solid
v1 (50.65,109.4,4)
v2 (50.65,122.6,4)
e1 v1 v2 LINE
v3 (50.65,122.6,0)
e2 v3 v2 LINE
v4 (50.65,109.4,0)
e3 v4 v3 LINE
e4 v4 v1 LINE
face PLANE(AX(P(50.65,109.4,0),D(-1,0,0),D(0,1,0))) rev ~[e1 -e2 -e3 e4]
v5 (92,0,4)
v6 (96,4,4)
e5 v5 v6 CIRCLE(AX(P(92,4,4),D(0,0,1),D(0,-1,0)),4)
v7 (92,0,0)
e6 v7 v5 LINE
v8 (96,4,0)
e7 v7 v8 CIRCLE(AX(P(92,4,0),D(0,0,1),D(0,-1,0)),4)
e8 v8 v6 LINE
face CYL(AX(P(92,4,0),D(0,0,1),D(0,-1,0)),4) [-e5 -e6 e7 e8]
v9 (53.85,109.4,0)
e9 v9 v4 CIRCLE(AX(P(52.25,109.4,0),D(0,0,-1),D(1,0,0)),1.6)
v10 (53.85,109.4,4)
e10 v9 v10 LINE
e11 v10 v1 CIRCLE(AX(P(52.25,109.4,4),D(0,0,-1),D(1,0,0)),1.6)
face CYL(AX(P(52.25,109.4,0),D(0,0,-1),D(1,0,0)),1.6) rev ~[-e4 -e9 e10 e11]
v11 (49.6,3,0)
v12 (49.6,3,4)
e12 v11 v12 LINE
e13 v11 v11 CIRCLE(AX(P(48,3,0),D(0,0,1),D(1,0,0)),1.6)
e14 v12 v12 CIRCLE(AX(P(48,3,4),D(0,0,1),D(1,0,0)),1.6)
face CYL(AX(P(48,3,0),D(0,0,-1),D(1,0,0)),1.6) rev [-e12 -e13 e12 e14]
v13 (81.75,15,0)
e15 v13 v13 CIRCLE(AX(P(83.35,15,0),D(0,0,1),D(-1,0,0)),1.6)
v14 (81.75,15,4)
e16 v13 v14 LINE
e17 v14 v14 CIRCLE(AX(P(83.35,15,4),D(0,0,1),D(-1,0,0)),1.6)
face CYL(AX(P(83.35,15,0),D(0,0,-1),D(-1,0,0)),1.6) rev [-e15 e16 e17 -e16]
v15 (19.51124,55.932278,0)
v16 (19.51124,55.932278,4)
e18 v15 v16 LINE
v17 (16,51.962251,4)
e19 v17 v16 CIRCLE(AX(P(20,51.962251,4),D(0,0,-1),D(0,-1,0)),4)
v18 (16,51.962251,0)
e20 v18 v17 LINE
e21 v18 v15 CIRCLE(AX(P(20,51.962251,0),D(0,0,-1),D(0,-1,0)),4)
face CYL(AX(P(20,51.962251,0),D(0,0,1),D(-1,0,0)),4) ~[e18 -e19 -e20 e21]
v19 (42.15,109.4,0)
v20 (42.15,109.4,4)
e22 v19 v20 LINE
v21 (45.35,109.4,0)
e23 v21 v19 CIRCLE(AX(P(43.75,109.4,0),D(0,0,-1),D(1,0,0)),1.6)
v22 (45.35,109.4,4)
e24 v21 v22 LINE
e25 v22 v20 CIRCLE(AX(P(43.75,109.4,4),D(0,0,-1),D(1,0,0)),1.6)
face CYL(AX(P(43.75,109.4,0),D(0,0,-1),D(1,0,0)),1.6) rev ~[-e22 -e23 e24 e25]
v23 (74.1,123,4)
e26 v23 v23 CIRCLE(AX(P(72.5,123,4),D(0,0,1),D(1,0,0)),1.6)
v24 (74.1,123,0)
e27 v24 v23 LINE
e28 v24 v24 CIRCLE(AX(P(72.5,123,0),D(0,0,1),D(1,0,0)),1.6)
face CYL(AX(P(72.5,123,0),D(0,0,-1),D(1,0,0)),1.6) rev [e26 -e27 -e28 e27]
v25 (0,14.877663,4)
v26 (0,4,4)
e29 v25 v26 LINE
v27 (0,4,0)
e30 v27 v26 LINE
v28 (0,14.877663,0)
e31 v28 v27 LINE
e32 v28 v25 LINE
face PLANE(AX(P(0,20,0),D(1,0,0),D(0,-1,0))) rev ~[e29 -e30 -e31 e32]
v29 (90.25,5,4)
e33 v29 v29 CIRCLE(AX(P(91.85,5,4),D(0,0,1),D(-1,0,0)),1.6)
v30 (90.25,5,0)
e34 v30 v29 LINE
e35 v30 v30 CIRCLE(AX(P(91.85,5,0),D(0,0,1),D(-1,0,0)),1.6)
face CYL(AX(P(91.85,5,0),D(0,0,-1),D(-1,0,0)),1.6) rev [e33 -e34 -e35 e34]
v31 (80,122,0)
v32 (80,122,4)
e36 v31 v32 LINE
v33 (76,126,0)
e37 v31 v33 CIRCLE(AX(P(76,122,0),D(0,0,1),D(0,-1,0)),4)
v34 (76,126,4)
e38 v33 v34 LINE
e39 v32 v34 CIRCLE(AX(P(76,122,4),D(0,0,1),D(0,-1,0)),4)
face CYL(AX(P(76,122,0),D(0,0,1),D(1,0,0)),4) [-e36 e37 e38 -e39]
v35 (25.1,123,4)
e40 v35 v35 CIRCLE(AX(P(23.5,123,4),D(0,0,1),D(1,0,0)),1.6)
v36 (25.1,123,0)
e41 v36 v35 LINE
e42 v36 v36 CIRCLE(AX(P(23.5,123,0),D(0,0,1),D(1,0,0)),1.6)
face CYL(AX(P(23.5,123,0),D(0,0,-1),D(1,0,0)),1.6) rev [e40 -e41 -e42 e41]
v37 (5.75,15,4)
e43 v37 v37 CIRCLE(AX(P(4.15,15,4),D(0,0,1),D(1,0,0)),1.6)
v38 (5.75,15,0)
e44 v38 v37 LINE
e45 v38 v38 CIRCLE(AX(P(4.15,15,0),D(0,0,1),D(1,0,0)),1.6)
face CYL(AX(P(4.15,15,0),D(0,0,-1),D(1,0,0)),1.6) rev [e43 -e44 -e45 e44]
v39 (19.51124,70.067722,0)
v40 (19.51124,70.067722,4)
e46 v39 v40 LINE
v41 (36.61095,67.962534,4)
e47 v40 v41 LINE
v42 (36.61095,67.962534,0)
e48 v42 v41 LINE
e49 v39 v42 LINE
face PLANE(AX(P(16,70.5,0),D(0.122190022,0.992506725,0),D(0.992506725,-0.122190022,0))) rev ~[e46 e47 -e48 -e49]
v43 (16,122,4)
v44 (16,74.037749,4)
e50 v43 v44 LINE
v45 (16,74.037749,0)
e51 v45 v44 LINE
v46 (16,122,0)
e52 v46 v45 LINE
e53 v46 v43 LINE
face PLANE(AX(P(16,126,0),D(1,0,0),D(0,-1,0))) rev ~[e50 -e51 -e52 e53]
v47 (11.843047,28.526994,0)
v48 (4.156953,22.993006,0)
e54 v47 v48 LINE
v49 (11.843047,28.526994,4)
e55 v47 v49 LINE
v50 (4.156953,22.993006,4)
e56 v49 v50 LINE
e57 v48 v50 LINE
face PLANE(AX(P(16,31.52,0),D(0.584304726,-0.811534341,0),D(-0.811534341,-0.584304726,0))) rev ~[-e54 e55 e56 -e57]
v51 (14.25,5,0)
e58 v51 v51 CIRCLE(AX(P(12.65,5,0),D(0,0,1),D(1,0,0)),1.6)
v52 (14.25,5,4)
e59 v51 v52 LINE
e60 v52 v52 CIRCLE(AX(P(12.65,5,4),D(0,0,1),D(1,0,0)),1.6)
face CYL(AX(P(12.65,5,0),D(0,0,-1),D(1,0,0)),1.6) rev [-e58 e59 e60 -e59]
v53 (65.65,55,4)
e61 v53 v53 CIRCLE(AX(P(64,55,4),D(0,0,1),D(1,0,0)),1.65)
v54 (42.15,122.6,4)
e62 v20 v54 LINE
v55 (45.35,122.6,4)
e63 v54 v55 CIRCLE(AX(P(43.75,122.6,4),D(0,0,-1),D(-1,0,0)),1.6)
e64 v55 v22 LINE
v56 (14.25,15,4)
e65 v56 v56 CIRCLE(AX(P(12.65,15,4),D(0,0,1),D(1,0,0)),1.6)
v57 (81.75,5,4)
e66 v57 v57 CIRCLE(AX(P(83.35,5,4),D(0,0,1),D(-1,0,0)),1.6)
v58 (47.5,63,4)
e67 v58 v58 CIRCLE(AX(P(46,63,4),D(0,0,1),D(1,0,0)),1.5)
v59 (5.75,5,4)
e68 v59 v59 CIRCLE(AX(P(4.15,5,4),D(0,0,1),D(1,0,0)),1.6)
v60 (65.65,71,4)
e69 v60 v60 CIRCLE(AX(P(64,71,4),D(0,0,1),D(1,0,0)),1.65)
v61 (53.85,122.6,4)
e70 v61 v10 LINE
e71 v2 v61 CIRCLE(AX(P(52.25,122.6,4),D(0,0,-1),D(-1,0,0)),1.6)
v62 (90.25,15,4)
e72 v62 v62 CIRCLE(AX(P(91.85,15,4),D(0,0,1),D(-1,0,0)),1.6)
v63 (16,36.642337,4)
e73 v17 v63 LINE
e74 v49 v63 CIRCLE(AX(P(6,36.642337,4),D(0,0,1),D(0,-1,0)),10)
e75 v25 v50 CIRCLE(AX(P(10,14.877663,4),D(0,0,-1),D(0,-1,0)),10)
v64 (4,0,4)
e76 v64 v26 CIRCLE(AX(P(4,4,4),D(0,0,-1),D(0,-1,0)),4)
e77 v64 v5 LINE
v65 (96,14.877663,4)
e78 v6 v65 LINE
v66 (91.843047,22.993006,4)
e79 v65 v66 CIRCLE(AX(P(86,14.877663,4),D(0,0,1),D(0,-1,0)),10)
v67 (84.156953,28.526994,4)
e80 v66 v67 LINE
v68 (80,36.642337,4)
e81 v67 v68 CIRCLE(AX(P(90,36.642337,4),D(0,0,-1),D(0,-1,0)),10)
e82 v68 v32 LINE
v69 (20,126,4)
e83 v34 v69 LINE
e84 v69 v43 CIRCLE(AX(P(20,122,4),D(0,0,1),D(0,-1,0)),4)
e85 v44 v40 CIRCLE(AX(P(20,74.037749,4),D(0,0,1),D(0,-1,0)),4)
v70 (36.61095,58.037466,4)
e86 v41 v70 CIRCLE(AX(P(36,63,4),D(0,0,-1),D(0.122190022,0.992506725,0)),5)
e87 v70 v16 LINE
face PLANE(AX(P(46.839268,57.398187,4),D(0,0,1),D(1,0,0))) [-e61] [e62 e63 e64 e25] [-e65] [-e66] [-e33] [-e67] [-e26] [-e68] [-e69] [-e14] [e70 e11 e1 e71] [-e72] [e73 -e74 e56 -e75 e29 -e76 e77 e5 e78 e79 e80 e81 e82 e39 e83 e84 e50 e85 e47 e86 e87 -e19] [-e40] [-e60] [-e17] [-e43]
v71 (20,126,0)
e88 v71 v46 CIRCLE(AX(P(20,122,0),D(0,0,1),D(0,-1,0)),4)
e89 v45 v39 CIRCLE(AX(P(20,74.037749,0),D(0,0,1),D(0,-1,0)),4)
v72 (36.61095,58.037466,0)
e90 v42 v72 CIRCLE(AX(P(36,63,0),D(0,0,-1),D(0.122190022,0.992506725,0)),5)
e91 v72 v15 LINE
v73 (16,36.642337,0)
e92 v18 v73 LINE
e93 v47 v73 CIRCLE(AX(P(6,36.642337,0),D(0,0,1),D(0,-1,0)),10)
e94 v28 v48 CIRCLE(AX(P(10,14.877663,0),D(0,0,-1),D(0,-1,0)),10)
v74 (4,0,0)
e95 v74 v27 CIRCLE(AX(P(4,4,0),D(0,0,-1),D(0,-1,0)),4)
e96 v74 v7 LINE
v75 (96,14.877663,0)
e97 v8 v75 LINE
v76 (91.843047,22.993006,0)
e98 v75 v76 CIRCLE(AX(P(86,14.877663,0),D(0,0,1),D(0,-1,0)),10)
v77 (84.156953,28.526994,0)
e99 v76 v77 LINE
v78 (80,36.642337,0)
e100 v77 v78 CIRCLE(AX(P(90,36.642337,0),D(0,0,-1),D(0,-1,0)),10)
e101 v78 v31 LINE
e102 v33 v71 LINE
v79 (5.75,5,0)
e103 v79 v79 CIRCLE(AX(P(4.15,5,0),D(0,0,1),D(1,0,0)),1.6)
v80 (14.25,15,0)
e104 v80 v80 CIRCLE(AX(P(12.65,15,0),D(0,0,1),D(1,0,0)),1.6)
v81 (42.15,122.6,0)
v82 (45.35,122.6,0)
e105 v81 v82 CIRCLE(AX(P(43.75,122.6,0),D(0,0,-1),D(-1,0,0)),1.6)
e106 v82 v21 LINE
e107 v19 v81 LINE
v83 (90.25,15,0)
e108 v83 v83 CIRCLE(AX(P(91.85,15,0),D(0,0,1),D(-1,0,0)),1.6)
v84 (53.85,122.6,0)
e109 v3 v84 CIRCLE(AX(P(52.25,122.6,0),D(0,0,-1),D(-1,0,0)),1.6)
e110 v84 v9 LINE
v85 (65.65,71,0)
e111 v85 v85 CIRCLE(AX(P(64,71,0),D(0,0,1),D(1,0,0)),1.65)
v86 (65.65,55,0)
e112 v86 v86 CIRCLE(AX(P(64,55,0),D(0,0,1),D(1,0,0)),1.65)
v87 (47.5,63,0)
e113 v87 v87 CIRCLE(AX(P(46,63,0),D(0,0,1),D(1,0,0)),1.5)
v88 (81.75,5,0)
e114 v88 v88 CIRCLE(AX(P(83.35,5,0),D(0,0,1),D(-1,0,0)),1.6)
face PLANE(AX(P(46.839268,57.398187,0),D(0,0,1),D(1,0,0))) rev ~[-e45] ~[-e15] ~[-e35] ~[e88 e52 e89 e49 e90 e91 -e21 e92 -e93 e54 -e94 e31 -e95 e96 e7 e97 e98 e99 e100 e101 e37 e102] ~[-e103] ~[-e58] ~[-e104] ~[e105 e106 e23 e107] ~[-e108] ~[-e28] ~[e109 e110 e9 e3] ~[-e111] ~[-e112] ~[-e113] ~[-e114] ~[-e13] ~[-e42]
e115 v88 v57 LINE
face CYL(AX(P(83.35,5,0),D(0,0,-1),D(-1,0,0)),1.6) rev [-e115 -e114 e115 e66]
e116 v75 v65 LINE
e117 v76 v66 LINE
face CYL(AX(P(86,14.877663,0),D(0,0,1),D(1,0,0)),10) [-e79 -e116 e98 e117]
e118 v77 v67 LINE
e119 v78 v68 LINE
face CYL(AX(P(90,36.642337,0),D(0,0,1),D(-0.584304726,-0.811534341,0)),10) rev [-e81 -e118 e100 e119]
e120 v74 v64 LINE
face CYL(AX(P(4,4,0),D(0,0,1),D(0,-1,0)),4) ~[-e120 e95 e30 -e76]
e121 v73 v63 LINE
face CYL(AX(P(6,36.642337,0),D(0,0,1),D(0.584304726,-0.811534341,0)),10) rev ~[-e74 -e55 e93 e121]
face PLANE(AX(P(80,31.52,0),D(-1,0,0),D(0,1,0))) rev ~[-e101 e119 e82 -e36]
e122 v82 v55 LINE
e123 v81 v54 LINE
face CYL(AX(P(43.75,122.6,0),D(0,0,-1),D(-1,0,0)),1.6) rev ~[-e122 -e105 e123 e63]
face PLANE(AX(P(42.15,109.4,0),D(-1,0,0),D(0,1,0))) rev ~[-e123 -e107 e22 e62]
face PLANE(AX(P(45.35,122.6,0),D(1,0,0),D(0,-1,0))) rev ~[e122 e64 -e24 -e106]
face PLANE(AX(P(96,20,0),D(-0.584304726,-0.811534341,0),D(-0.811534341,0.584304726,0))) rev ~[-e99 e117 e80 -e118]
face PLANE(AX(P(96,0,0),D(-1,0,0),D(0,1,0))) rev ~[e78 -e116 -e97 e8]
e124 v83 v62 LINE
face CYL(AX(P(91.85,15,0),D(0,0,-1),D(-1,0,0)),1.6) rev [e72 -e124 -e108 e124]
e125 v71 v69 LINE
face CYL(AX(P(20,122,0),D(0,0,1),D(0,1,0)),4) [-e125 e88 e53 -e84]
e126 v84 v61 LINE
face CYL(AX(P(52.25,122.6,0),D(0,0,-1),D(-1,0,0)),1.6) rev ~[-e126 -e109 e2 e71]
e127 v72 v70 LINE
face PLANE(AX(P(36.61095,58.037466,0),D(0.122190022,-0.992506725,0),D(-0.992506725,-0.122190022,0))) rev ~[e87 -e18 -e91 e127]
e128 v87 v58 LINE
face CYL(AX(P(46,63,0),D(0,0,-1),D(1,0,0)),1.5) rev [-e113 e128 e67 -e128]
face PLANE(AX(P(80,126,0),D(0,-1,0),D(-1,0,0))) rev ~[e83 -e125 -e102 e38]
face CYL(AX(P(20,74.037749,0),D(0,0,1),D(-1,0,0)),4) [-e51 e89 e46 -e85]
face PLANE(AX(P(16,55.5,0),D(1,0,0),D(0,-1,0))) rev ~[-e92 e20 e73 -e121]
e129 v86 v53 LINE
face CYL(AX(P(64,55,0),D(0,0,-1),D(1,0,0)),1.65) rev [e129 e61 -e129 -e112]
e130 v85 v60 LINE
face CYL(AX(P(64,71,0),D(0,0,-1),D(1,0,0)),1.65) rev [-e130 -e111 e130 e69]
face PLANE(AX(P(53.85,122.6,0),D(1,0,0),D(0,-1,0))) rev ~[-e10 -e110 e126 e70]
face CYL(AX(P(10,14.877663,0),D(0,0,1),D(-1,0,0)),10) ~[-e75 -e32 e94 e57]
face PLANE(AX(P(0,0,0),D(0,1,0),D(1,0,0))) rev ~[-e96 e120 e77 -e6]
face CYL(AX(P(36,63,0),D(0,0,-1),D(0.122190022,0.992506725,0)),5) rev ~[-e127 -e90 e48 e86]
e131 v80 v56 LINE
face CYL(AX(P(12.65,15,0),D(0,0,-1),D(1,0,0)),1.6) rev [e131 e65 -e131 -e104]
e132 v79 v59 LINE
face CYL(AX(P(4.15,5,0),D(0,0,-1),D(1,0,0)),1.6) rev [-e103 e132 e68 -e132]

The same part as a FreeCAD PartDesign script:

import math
import FreeCAD as App
import Part
import Sketcher


def edges_at(feature, points):
    """Names of the edges that pass closest to the given points."""
    edges = feature.Shape.Edges
    near = lambda p: min(range(len(edges)), key=lambda i: edges[i].distToShape(Part.Vertex(*p))[0])
    return sorted({f"Edge{near(p) + 1}" for p in points})

doc = App.newDocument("Part")
params = doc.addObject("Spreadsheet::Sheet", "Params")
for row, (alias, value) in enumerate([
    ("sketch1_diameter", "3 mm"),
    ("sketch1_radius", "5 mm"),
    ("sketch1_diameter2", "3.2 mm"),
    ("sketch1_diameter3", "3.3 mm"),
    ("sketch1_width", "96 mm"),
    ("pad1_length", "4 mm"),
    ("fillet_radius", "4 mm"),
    ("fillet2_radius", "10 mm"),
], start=1):
    params.set(f"A{row}", alias)
    params.set(f"B{row}", "=" + value)
    params.setAlias(f"B{row}", alias)

body = doc.addObject("PartDesign::Body", "Body")

# Sketch on XY plane
sketch1 = body.newObject("Sketcher::SketchObject", "Sketch")
sketch1.AttachmentSupport = (doc.getObject("XY_Plane"), [""])
sketch1.MapMode = "FlatFace"
sketch1.addGeometry(Part.LineSegment(App.Vector(0, 0, 0), App.Vector(96, 0, 0)), False)
sketch1.addGeometry(Part.LineSegment(App.Vector(96, 0, 0), App.Vector(96, 20, 0)), False)
sketch1.addGeometry(Part.LineSegment(App.Vector(96, 20, 0), App.Vector(80, 31.5, 0)), False)
sketch1.addGeometry(Part.LineSegment(App.Vector(80, 31.5, 0), App.Vector(80, 126, 0)), False)
sketch1.addGeometry(Part.LineSegment(App.Vector(80, 126, 0), App.Vector(16, 126, 0)), False)
sketch1.addGeometry(Part.LineSegment(App.Vector(16, 126, 0), App.Vector(16, 70.5, 0)), False)
sketch1.addGeometry(Part.LineSegment(App.Vector(16, 70.5, 0), App.Vector(36.6, 68, 0)), False)
sketch1.addGeometry(Part.ArcOfCircle(Part.Circle(App.Vector(36, 63, 0), App.Vector(0, 0, 1), 5), math.radians(-83), math.radians(83)), False)
sketch1.addGeometry(Part.LineSegment(App.Vector(36.6, 58, 0), App.Vector(16, 55.5, 0)), False)
sketch1.addGeometry(Part.LineSegment(App.Vector(16, 55.5, 0), App.Vector(16, 31.5, 0)), False)
sketch1.addGeometry(Part.LineSegment(App.Vector(16, 31.5, 0), App.Vector(0, 20, 0)), False)
sketch1.addGeometry(Part.LineSegment(App.Vector(0, 20, 0), App.Vector(0, 0, 0)), False)
sketch1.addGeometry(Part.Circle(App.Vector(4.2, 5, 0), App.Vector(0, 0, 1), 1.6), False)
sketch1.addGeometry(Part.Circle(App.Vector(12.7, 5, 0), App.Vector(0, 0, 1), 1.6), False)
sketch1.addGeometry(Part.Circle(App.Vector(4.2, 15, 0), App.Vector(0, 0, 1), 1.6), False)
sketch1.addGeometry(Part.Circle(App.Vector(12.7, 15, 0), App.Vector(0, 0, 1), 1.6), False)
sketch1.addGeometry(Part.Circle(App.Vector(46, 63, 0), App.Vector(0, 0, 1), 1.5), False)
sketch1.addGeometry(Part.Circle(App.Vector(48, 3, 0), App.Vector(0, 0, 1), 1.6), False)
sketch1.addGeometry(Part.Circle(App.Vector(83.3, 5, 0), App.Vector(0, 0, 1), 1.6), False)
sketch1.addGeometry(Part.Circle(App.Vector(91.8, 5, 0), App.Vector(0, 0, 1), 1.6), False)
sketch1.addGeometry(Part.Circle(App.Vector(83.3, 15, 0), App.Vector(0, 0, 1), 1.6), False)
sketch1.addGeometry(Part.Circle(App.Vector(91.8, 15, 0), App.Vector(0, 0, 1), 1.6), False)
sketch1.addGeometry(Part.Circle(App.Vector(64, 55, 0), App.Vector(0, 0, 1), 1.6), False)
sketch1.addGeometry(Part.Circle(App.Vector(23.5, 123, 0), App.Vector(0, 0, 1), 1.6), False)
sketch1.addGeometry(Part.ArcOfCircle(Part.Circle(App.Vector(43.8, 122.6, 0), App.Vector(0, 0, 1), 1.6), math.radians(0), math.radians(180)), False)
sketch1.addGeometry(Part.LineSegment(App.Vector(45.4, 122.6, 0), App.Vector(45.4, 109.4, 0)), False)
sketch1.addGeometry(Part.ArcOfCircle(Part.Circle(App.Vector(43.8, 109.4, 0), App.Vector(0, 0, 1), 1.6), math.radians(180), math.radians(360)), False)
sketch1.addGeometry(Part.LineSegment(App.Vector(42.1, 109.4, 0), App.Vector(42.1, 122.6, 0)), False)
sketch1.addGeometry(Part.Circle(App.Vector(64, 71, 0), App.Vector(0, 0, 1), 1.6), False)
sketch1.addGeometry(Part.ArcOfCircle(Part.Circle(App.Vector(52.2, 109.4, 0), App.Vector(0, 0, 1), 1.6), math.radians(180), math.radians(360)), False)
sketch1.addGeometry(Part.LineSegment(App.Vector(50.6, 109.4, 0), App.Vector(50.6, 122.6, 0)), False)
sketch1.addGeometry(Part.ArcOfCircle(Part.Circle(App.Vector(52.2, 122.6, 0), App.Vector(0, 0, 1), 1.6), math.radians(0), math.radians(180)), False)
sketch1.addGeometry(Part.LineSegment(App.Vector(53.9, 122.6, 0), App.Vector(53.9, 109.4, 0)), False)
sketch1.addGeometry(Part.Circle(App.Vector(72.5, 123, 0), App.Vector(0, 0, 1), 1.6), False)
sketch1.addConstraint(Sketcher.Constraint("Coincident", 0, 2, 1, 1))
sketch1.addConstraint(Sketcher.Constraint("Coincident", 1, 2, 2, 1))
sketch1.addConstraint(Sketcher.Constraint("Coincident", 2, 2, 3, 1))
sketch1.addConstraint(Sketcher.Constraint("Coincident", 3, 2, 4, 1))
sketch1.addConstraint(Sketcher.Constraint("Coincident", 4, 2, 5, 1))
sketch1.addConstraint(Sketcher.Constraint("Coincident", 5, 2, 6, 1))
sketch1.addConstraint(Sketcher.Constraint("Tangent", 6, 2, 7, 2))
sketch1.addConstraint(Sketcher.Constraint("Tangent", 7, 1, 8, 1))
sketch1.addConstraint(Sketcher.Constraint("Coincident", 8, 2, 9, 1))
sketch1.addConstraint(Sketcher.Constraint("Coincident", 9, 2, 10, 1))
sketch1.addConstraint(Sketcher.Constraint("Coincident", 10, 2, 11, 1))
sketch1.addConstraint(Sketcher.Constraint("Coincident", 11, 2, 0, 1))
sketch1.addConstraint(Sketcher.Constraint("Tangent", 24, 1, 25, 1))
sketch1.addConstraint(Sketcher.Constraint("Tangent", 25, 2, 26, 2))
sketch1.addConstraint(Sketcher.Constraint("Tangent", 26, 1, 27, 1))
sketch1.addConstraint(Sketcher.Constraint("Tangent", 27, 2, 24, 2))
sketch1.addConstraint(Sketcher.Constraint("Tangent", 29, 1, 30, 1))
sketch1.addConstraint(Sketcher.Constraint("Tangent", 30, 2, 31, 2))
sketch1.addConstraint(Sketcher.Constraint("Tangent", 31, 1, 32, 1))
sketch1.addConstraint(Sketcher.Constraint("Tangent", 32, 2, 29, 2))
sketch1.addConstraint(Sketcher.Constraint("Horizontal", 0))
sketch1.addConstraint(Sketcher.Constraint("Vertical", 1))
sketch1.addConstraint(Sketcher.Constraint("Vertical", 3))
sketch1.addConstraint(Sketcher.Constraint("Horizontal", 4))
sketch1.addConstraint(Sketcher.Constraint("Vertical", 5))
sketch1.addConstraint(Sketcher.Constraint("Vertical", 9))
sketch1.addConstraint(Sketcher.Constraint("Vertical", 11))
sketch1.addConstraint(Sketcher.Constraint("Vertical", 25))
sketch1.addConstraint(Sketcher.Constraint("Vertical", 27))
sketch1.addConstraint(Sketcher.Constraint("Vertical", 30))
sketch1.addConstraint(Sketcher.Constraint("Vertical", 32))
sketch1.addConstraint(Sketcher.Constraint("Coincident", 11, 2, -1, 1))
sketch1.addConstraint(Sketcher.Constraint("Equal", 12, 13))
sketch1.addConstraint(Sketcher.Constraint("Equal", 13, 14))
sketch1.addConstraint(Sketcher.Constraint("Equal", 14, 15))
sketch1.addConstraint(Sketcher.Constraint("Equal", 15, 17))
sketch1.addConstraint(Sketcher.Constraint("Equal", 17, 18))
sketch1.addConstraint(Sketcher.Constraint("Equal", 18, 19))
sketch1.addConstraint(Sketcher.Constraint("Equal", 19, 20))
sketch1.addConstraint(Sketcher.Constraint("Equal", 20, 21))
sketch1.addConstraint(Sketcher.Constraint("Equal", 21, 23))
sketch1.addConstraint(Sketcher.Constraint("Equal", 23, 24))
sketch1.addConstraint(Sketcher.Constraint("Equal", 22, 28))
sketch1.addConstraint(Sketcher.Constraint("Equal", 26, 29))
sketch1.addConstraint(Sketcher.Constraint("Equal", 31, 33))
sketch1.addConstraint(Sketcher.Constraint("Horizontal", 12, 3, 13, 3))
sketch1.addConstraint(Sketcher.Constraint("Horizontal", 14, 3, 15, 3))
sketch1.addConstraint(Sketcher.Constraint("Horizontal", 7, 3, 16, 3))
sketch1.addConstraint(Sketcher.Constraint("Horizontal", 13, 3, 18, 3))
sketch1.addConstraint(Sketcher.Constraint("Horizontal", 18, 3, 19, 3))
sketch1.addConstraint(Sketcher.Constraint("Horizontal", 15, 3, 20, 3))
sketch1.addConstraint(Sketcher.Constraint("Horizontal", 20, 3, 21, 3))
sketch1.addConstraint(Sketcher.Constraint("Horizontal", 26, 3, 29, 3))
sketch1.addConstraint(Sketcher.Constraint("Horizontal", 24, 3, 31, 3))
sketch1.addConstraint(Sketcher.Constraint("Horizontal", 23, 3, 33, 3))
sketch1.addConstraint(Sketcher.Constraint("Horizontal", 2, 2, 9, 2))
sketch1.addConstraint(Sketcher.Constraint("Horizontal", 1, 2, 10, 2))
sketch1.addConstraint(Sketcher.Constraint("Vertical", 12, 3, 14, 3))
sketch1.addConstraint(Sketcher.Constraint("Vertical", 13, 3, 15, 3))
sketch1.addConstraint(Sketcher.Constraint("Vertical", 18, 3, 20, 3))
sketch1.addConstraint(Sketcher.Constraint("Vertical", 19, 3, 21, 3))
sketch1.addConstraint(Sketcher.Constraint("Vertical", 22, 3, 28, 3))
sketch1.addConstraint(Sketcher.Constraint("Vertical", 6, 2, 7, 1))
sketch1.addConstraint(Sketcher.Constraint("Vertical", 5, 2, 8, 2))
sketch1.addConstraint(Sketcher.Constraint("Equal", 2, 10))
sketch1.addConstraint(Sketcher.Constraint("Diameter", 16, 3.0))
sketch1.addConstraint(Sketcher.Constraint("Radius", 7, 5.0))
sketch1.addConstraint(Sketcher.Constraint("Diameter", 12, 3.2))
sketch1.addConstraint(Sketcher.Constraint("Diameter", 22, 3.3))
sketch1.addConstraint(Sketcher.Constraint("DistanceX", 0, 1, 0, 2, 96.0))
sketch1.addConstraint(Sketcher.Constraint("DistanceX", 4, 2, 4, 1, 64.0))
sketch1.addConstraint(Sketcher.Constraint("DistanceY", 1, 1, 1, 2, 20.0))
sketch1.addConstraint(Sketcher.Constraint("DistanceY", 5, 2, 5, 1, 55.5))
sketch1.addConstraint(Sketcher.Constraint("DistanceY", 25, 2, 25, 1, 13.2))
sketch1.addConstraint(Sketcher.Constraint("DistanceX", -1, 1, 7, 3, 36.0))
sketch1.addConstraint(Sketcher.Constraint("DistanceY", -1, 1, 7, 3, 63.0))
sketch1.addConstraint(Sketcher.Constraint("DistanceY", -1, 1, 12, 3, 5.0))
sketch1.addConstraint(Sketcher.Constraint("DistanceY", -1, 1, 14, 3, 15.0))
sketch1.addConstraint(Sketcher.Constraint("DistanceX", -1, 1, 16, 3, 46.0))
sketch1.addConstraint(Sketcher.Constraint("DistanceX", -1, 1, 17, 3, 48.0))
sketch1.addConstraint(Sketcher.Constraint("DistanceY", -1, 1, 17, 3, 3.0))
sketch1.addConstraint(Sketcher.Constraint("DistanceX", -1, 1, 22, 3, 64.0))
sketch1.addConstraint(Sketcher.Constraint("DistanceY", -1, 1, 22, 3, 55.0))
sketch1.addConstraint(Sketcher.Constraint("DistanceY", -1, 1, 23, 3, 123.0))
sketch1.addConstraint(Sketcher.Constraint("DistanceY", -1, 1, 28, 3, 71.0))
sketch1.addConstraint(Sketcher.Constraint("DistanceY", -1, 1, 3, 2, 126.0))
sketch1.addConstraint(Sketcher.Constraint("DistanceX", 23, 3, 33, 3, 49.0))
sketch1.addConstraint(Sketcher.Constraint("DistanceY", 3, 1, 3, 2, 94.48))
sketch1.addConstraint(Sketcher.Constraint("DistanceX", -1, 1, 23, 3, 23.5))
sketch1.addConstraint(Sketcher.Constraint("DistanceY", -1, 1, 24, 3, 122.6))
sketch1.addConstraint(Sketcher.Constraint("DistanceX", 12, 3, 13, 3, 8.5))
sketch1.addConstraint(Sketcher.Constraint("DistanceX", 13, 3, 18, 3, 70.7))
sketch1.addConstraint(Sketcher.Constraint("DistanceX", 18, 3, 19, 3, 8.5))
sketch1.addConstraint(Sketcher.Constraint("DistanceX", 15, 3, 24, 3, 31.1))
sketch1.addConstraint(Sketcher.Constraint("DistanceX", 26, 3, 29, 3, 8.5))
sketch1.addConstraint(Sketcher.Constraint("DistanceX", -1, 1, 12, 3, 4.15))
sketch1.setExpression("Constraints[65]", "Params.sketch1_diameter")
sketch1.setExpression("Constraints[66]", "Params.sketch1_radius")
sketch1.setExpression("Constraints[67]", "Params.sketch1_diameter2")
sketch1.setExpression("Constraints[68]", "Params.sketch1_diameter3")
sketch1.setExpression("Constraints[69]", "Params.sketch1_width")
pad1 = body.newObject("PartDesign::Pad", "Pad")
pad1.Profile = sketch1
pad1.setExpression("Length", "Params.pad1_length")
doc.recompute()

fillet = body.newObject("PartDesign::Fillet", "Fillet")
fillet.Base = (pad1, edges_at(pad1, [
    (16, 55.5, 2),
    (16, 70.5, 2),
    (16, 126, 2),
    (80, 126, 2),
    (96, 0, 2),
    (0, 0, 2),
]))
fillet.setExpression("Radius", "Params.fillet_radius")
doc.recompute()

fillet2 = body.newObject("PartDesign::Fillet", "Fillet001")
fillet2.Base = (fillet, edges_at(fillet, [
    (0, 20, 2),
    (16, 31.52, 2),
    (80, 31.52, 2),
    (96, 20, 2),
]))
fillet2.setExpression("Radius", "Params.fillet2_radius")

doc.recompute()
